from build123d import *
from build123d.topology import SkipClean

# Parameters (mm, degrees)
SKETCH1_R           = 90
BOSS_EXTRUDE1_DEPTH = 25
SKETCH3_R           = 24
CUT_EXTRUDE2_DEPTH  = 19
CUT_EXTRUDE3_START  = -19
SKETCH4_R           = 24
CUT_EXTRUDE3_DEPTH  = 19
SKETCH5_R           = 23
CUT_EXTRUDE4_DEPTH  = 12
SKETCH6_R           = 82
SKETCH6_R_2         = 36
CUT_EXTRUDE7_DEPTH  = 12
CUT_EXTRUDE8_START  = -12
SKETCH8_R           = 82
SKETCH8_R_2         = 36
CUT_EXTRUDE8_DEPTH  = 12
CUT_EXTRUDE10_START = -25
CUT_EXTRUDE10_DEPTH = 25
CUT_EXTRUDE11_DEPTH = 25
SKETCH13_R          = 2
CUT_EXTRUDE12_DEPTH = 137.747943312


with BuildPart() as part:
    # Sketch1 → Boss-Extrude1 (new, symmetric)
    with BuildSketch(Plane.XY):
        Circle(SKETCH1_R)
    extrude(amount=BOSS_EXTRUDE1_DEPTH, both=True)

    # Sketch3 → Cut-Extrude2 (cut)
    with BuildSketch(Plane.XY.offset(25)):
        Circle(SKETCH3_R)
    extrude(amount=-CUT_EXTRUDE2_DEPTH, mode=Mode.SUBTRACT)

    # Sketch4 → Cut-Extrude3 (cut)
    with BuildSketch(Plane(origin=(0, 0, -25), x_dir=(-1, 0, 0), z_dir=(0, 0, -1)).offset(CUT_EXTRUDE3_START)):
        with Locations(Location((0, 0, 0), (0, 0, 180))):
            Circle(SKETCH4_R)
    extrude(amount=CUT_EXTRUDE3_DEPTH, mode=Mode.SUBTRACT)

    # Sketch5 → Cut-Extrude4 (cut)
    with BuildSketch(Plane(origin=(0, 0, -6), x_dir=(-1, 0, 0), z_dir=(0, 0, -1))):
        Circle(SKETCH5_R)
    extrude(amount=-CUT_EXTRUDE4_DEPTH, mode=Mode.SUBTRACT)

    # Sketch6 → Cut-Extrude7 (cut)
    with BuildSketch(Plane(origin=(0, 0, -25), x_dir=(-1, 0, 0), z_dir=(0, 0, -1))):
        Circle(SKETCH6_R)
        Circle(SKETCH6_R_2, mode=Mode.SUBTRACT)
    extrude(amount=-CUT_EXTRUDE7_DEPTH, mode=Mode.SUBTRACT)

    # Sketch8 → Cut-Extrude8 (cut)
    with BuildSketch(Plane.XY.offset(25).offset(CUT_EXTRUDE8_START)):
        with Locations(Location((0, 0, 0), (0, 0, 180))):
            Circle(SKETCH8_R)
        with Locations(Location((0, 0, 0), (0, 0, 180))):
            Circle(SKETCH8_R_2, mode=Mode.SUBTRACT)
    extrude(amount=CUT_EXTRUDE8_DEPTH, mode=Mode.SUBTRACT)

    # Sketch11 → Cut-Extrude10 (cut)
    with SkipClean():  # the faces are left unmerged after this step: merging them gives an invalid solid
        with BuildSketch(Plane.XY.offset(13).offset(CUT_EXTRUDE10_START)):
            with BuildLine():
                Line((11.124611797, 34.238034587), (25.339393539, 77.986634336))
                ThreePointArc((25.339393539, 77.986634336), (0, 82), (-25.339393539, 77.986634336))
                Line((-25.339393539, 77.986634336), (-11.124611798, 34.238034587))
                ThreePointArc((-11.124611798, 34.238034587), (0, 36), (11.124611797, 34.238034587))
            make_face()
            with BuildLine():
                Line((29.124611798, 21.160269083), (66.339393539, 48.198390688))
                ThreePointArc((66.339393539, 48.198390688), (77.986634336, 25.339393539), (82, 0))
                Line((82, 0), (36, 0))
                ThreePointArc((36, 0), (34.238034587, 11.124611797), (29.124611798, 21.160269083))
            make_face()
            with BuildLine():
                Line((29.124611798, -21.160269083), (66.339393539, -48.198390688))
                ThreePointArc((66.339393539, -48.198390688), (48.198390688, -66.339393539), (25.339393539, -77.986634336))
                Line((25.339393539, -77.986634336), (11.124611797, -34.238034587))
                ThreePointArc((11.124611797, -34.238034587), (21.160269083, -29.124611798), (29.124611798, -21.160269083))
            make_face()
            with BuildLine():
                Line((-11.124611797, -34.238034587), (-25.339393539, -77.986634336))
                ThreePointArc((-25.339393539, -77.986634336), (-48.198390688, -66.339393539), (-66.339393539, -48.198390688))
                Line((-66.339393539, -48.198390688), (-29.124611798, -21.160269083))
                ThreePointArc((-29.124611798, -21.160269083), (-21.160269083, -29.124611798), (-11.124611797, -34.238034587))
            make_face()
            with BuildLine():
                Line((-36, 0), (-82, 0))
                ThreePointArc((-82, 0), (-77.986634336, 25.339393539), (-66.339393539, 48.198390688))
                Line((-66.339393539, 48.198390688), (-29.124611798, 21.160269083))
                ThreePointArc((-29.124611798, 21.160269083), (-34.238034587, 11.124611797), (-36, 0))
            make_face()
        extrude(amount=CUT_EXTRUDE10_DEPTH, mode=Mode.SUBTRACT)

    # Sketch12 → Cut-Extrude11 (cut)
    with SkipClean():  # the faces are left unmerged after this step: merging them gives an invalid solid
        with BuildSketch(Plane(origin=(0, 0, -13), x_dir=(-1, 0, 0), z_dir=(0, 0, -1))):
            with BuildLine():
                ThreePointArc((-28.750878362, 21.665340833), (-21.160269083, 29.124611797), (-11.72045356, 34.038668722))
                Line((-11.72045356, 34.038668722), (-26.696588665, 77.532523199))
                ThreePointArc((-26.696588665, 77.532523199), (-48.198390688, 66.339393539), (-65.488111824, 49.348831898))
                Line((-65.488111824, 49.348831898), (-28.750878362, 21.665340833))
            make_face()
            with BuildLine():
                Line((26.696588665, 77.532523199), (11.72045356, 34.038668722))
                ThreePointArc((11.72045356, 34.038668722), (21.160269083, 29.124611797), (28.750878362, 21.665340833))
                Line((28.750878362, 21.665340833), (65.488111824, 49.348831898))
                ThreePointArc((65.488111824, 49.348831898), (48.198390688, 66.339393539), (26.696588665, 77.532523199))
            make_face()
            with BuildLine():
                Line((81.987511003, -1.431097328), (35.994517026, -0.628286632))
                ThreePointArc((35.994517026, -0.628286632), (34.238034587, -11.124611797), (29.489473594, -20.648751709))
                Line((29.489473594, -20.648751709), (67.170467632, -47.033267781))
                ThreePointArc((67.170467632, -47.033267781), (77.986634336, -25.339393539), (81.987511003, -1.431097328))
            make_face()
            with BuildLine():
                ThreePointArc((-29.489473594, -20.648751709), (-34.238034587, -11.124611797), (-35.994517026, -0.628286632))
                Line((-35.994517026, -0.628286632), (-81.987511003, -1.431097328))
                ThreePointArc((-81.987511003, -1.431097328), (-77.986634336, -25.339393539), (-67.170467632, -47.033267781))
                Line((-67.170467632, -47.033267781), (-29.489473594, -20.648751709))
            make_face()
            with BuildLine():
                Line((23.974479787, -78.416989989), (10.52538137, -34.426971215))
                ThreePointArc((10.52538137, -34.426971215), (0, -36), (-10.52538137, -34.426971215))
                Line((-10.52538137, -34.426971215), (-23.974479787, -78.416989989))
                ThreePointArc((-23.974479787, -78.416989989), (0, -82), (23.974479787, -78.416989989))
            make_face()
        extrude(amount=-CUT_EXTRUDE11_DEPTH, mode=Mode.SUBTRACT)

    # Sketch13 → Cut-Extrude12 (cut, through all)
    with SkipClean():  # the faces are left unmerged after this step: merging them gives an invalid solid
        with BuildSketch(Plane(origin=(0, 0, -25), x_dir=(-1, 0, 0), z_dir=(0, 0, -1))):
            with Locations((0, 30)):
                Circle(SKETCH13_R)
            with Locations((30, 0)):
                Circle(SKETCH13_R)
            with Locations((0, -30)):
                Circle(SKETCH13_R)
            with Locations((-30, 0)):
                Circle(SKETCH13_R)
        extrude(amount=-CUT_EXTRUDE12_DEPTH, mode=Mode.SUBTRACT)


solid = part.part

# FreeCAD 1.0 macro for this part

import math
import FreeCAD as App
import Part
import Sketcher

V = App.Vector
Q = App.Units.Quantity

doc = App.newDocument("Part")
body = doc.addObject("PartDesign::Body", "Body")

# Sketch on XY plane
sketch1 = doc.addObject("Sketcher::SketchObject", "Sketch")
body.addObject(sketch1)
sketch1.AttachmentSupport = (doc.XY_Plane, [""])
sketch1.MapMode = "FlatFace"
sketch1.addGeometry(Part.Circle(V(0, 0, 0), V(0, 0, 1), 90), False)
sketch1.addConstraint([
    Sketcher.Constraint("Coincident", 0, 3, -1, 1),
    Sketcher.Constraint("Diameter", 0, Q("180 mm")),
])
pad1 = doc.addObject("PartDesign::Pad", "Pad")
body.addObject(pad1)
pad1.Profile = sketch1
pad1.Length = 50
pad1.Midplane = True

# Sketch on XY plane
sketch2 = doc.addObject("Sketcher::SketchObject", "Sketch001")
body.addObject(sketch2)
sketch2.AttachmentSupport = (doc.XY_Plane, [""])
sketch2.MapMode = "FlatFace"
sketch2.AttachmentOffset = App.Placement(V(0, 0, 25), App.Rotation())
sketch2.addGeometry(Part.Circle(V(0, 0, 0), V(0, 0, 1), 24), False)
sketch2.addConstraint([
    Sketcher.Constraint("Coincident", 0, 3, -1, 1),
    Sketcher.Constraint("Diameter", 0, Q("48 mm")),
])
pocket1 = doc.addObject("PartDesign::Pocket", "Pocket")
body.addObject(pocket1)
pocket1.Profile = sketch2
pocket1.Length = 19

# Sketch on XY plane
sketch3 = doc.addObject("Sketcher::SketchObject", "Sketch002")
body.addObject(sketch3)
sketch3.AttachmentSupport = (doc.XY_Plane, [""])
sketch3.MapMode = "FlatFace"
sketch3.AttachmentOffset = App.Placement(V(0, 0, -6), App.Rotation())
sketch3.addGeometry(Part.Circle(V(0, 0, 0), V(0, 0, 1), 24), False)
sketch3.addConstraint([
    Sketcher.Constraint("Coincident", 0, 3, -1, 1),
    Sketcher.Constraint("Diameter", 0, Q("48 mm")),
])
pocket2 = doc.addObject("PartDesign::Pocket", "Pocket001")
body.addObject(pocket2)
pocket2.Profile = sketch3
pocket2.Length = 19

# Sketch on XY plane
sketch4 = doc.addObject("Sketcher::SketchObject", "Sketch003")
body.addObject(sketch4)
sketch4.AttachmentSupport = (doc.XY_Plane, [""])
sketch4.MapMode = "FlatFace"
sketch4.AttachmentOffset = App.Placement(V(0, 0, -6), App.Rotation())
sketch4.addGeometry(Part.Circle(V(0, 0, 0), V(0, 0, 1), 23), False)
sketch4.addConstraint([
    Sketcher.Constraint("Coincident", 0, 3, -1, 1),
    Sketcher.Constraint("Diameter", 0, Q("46 mm")),
])
pocket3 = doc.addObject("PartDesign::Pocket", "Pocket002")
body.addObject(pocket3)
pocket3.Profile = sketch4
pocket3.Length = 12
pocket3.Reversed = True

# Sketch on XY plane
sketch5 = doc.addObject("Sketcher::SketchObject", "Sketch004")
body.addObject(sketch5)
sketch5.AttachmentSupport = (doc.XY_Plane, [""])
sketch5.MapMode = "FlatFace"
sketch5.AttachmentOffset = App.Placement(V(0, 0, -25), App.Rotation())
sketch5.addGeometry([
    Part.Circle(V(0, 0, 0), V(0, 0, 1), 82),
    Part.Circle(V(0, 0, 0), V(0, 0, 1), 36),
], False)
sketch5.addConstraint([
    Sketcher.Constraint("Coincident", 0, 3, -1, 1),
    Sketcher.Constraint("Coincident", 1, 3, -1, 1),
    Sketcher.Constraint("Diameter", 0, Q("164 mm")),
    Sketcher.Constraint("Diameter", 1, Q("72 mm")),
])
pocket4 = doc.addObject("PartDesign::Pocket", "Pocket003")
body.addObject(pocket4)
pocket4.Profile = sketch5
pocket4.Length = 12
pocket4.Reversed = True

# Sketch on XY plane
sketch6 = doc.addObject("Sketcher::SketchObject", "Sketch005")
body.addObject(sketch6)
sketch6.AttachmentSupport = (doc.XY_Plane, [""])
sketch6.MapMode = "FlatFace"
sketch6.AttachmentOffset = App.Placement(V(0, 0, 13), App.Rotation())
sketch6.addGeometry([
    Part.Circle(V(0, 0, 0), V(0, 0, 1), 82),
    Part.Circle(V(0, 0, 0), V(0, 0, 1), 36),
], False)
sketch6.addConstraint([
    Sketcher.Constraint("Coincident", 0, 3, -1, 1),
    Sketcher.Constraint("Coincident", 1, 3, -1, 1),
    Sketcher.Constraint("Diameter", 0, Q("164 mm")),
    Sketcher.Constraint("Diameter", 1, Q("72 mm")),
])
pocket5 = doc.addObject("PartDesign::Pocket", "Pocket004")
body.addObject(pocket5)
pocket5.Profile = sketch6
pocket5.Length = 12
pocket5.Reversed = True

# Sketch on XY plane
sketch7 = doc.addObject("Sketcher::SketchObject", "Sketch006")
body.addObject(sketch7)
sketch7.AttachmentSupport = (doc.XY_Plane, [""])
sketch7.MapMode = "FlatFace"
sketch7.AttachmentOffset = App.Placement(V(0, 0, -12), App.Rotation())
sketch7.addGeometry([
    Part.LineSegment(V(11, 34, 0), V(25, 78, 0)),  # 0
    Part.ArcOfCircle(Part.Circle(V(0, 0, 0), V(0, 0, 1), 82), math.radians(72), math.radians(108)),  # 1
    Part.LineSegment(V(-25, 78, 0), V(-11, 34, 0)),  # 2
    Part.ArcOfCircle(Part.Circle(V(0, 0, 0), V(0, 0, 1), 36), math.radians(72), math.radians(108)),  # 3
    Part.LineSegment(V(66, 48, 0), V(29, 21, 0)),  # 4
    Part.ArcOfCircle(Part.Circle(V(0, 0, 0), V(0, 0, 1), 36), math.radians(0), math.radians(36)),  # 5
    Part.LineSegment(V(36, 0, 0), V(82, 0, 0)),  # 6
    Part.ArcOfCircle(Part.Circle(V(0, 0, 0), V(0, 0, 1), 82), math.radians(0), math.radians(36)),  # 7
    Part.LineSegment(V(66, -48, 0), V(29, -21, 0)),  # 8
    Part.ArcOfCircle(Part.Circle(V(0, 0, 0), V(0, 0, 1), 36), math.radians(-72), math.radians(-36)),  # 9
    Part.LineSegment(V(11, -34, 0), V(25, -78, 0)),  # 10
    Part.ArcOfCircle(Part.Circle(V(0, 0, 0), V(0, 0, 1), 82), math.radians(-72), math.radians(-36)),  # 11
    Part.LineSegment(V(-25, -78, 0), V(-11, -34, 0)),  # 12
    Part.ArcOfCircle(Part.Circle(V(0, 0, 0), V(0, 0, 1), 36), math.radians(-144), math.radians(-108)),  # 13
    Part.LineSegment(V(-29, -21, 0), V(-66, -48, 0)),  # 14
    Part.ArcOfCircle(Part.Circle(V(0, 0, 0), V(0, 0, 1), 82), math.radians(-144), math.radians(-108)),  # 15
    Part.LineSegment(V(-82, 0, 0), V(-36, 0, 0)),  # 16
    Part.ArcOfCircle(Part.Circle(V(0, 0, 0), V(0, 0, 1), 36), math.radians(144), math.radians(180)),  # 17
    Part.LineSegment(V(-29, 21, 0), V(-66, 48, 0)),  # 18
    Part.ArcOfCircle(Part.Circle(V(0, 0, 0), V(0, 0, 1), 82), math.radians(144), math.radians(180)),  # 19
], False)
sketch7.addConstraint([
    Sketcher.Constraint("Coincident", 0, 2, 1, 1),
    Sketcher.Constraint("Coincident", 1, 2, 2, 1),
    Sketcher.Constraint("Coincident", 2, 2, 3, 2),
    Sketcher.Constraint("Coincident", 3, 1, 0, 1),
    Sketcher.Constraint("Coincident", 4, 2, 5, 2),
    Sketcher.Constraint("Coincident", 5, 1, 6, 1),
    Sketcher.Constraint("Coincident", 6, 2, 7, 1),
    Sketcher.Constraint("Coincident", 7, 2, 4, 1),
    Sketcher.Constraint("Coincident", 8, 2, 9, 2),
    Sketcher.Constraint("Coincident", 9, 1, 10, 1),
    Sketcher.Constraint("Coincident", 10, 2, 11, 1),
    Sketcher.Constraint("Coincident", 11, 2, 8, 1),
    Sketcher.Constraint("Coincident", 12, 2, 13, 2),
    Sketcher.Constraint("Coincident", 13, 1, 14, 1),
    Sketcher.Constraint("Coincident", 14, 2, 15, 1),
    Sketcher.Constraint("Coincident", 15, 2, 12, 1),
    Sketcher.Constraint("Coincident", 16, 2, 17, 2),
    Sketcher.Constraint("Coincident", 17, 1, 18, 1),
    Sketcher.Constraint("Coincident", 18, 2, 19, 1),
    Sketcher.Constraint("Coincident", 19, 2, 16, 1),
    Sketcher.Constraint("Horizontal", 6),
    Sketcher.Constraint("Horizontal", 16),
    Sketcher.Constraint("Coincident", 1, 3, -1, 1),
    Sketcher.Constraint("Coincident", 3, 3, -1, 1),
    Sketcher.Constraint("Coincident", 5, 3, -1, 1),
    Sketcher.Constraint("Coincident", 7, 3, -1, 1),
    Sketcher.Constraint("Coincident", 9, 3, -1, 1),
    Sketcher.Constraint("Coincident", 11, 3, -1, 1),
    Sketcher.Constraint("Coincident", 13, 3, -1, 1),
    Sketcher.Constraint("Coincident", 15, 3, -1, 1),
    Sketcher.Constraint("Coincident", 17, 3, -1, 1),
    Sketcher.Constraint("Coincident", 19, 3, -1, 1),
    Sketcher.Constraint("Equal", 3, 5),
    Sketcher.Constraint("Equal", 1, 7),
    Sketcher.Constraint("Equal", 5, 9),
    Sketcher.Constraint("Equal", 7, 11),
    Sketcher.Constraint("Equal", 9, 13),
    Sketcher.Constraint("Equal", 11, 15),
    Sketcher.Constraint("Equal", 13, 17),
    Sketcher.Constraint("Equal", 15, 19),
    Sketcher.Constraint("PointOnObject", 5, 1, -1),
    Sketcher.Constraint("PointOnObject", 16, 2, -1),
    Sketcher.Constraint("Parallel", 2, 10),
    Sketcher.Constraint("Parallel", 0, 12),
    Sketcher.Constraint("Parallel", 4, 14),
    Sketcher.Constraint("Parallel", 8, 18),
    Sketcher.Constraint("Horizontal", 0, 2, 1, 2),
    Sketcher.Constraint("Horizontal", 2, 2, 3, 1),
    Sketcher.Constraint("Horizontal", 9, 1, 12, 2),
    Sketcher.Constraint("Horizontal", 8, 2, 13, 1),
    Sketcher.Constraint("Horizontal", 11, 2, 14, 2),
    Sketcher.Constraint("Horizontal", 4, 2, 17, 1),
    Sketcher.Constraint("Vertical", 4, 2, 8, 2),
    Sketcher.Constraint("Vertical", 3, 1, 9, 1),
    Sketcher.Constraint("Radius", 1, Q("82 mm")),
    Sketcher.Constraint("Radius", 3, Q("36 mm")),
    Sketcher.Constraint("Angle", 0, Q("72 deg")),
    Sketcher.Constraint("Angle", 4, Q("-144 deg")),
    Sketcher.Constraint("DistanceX", 3, 1, 4, 2, Q("18 mm")),
    Sketcher.Constraint("DistanceX", 2, 2, -1, 1, Q("11.124612 mm")),
])
pocket6 = doc.addObject("PartDesign::Pocket", "Pocket005")
body.addObject(pocket6)
pocket6.Profile = sketch7
pocket6.Length = 25
pocket6.Reversed = True

# Sketch on XY plane
sketch8 = doc.addObject("Sketcher::SketchObject", "Sketch007")
body.addObject(sketch8)
sketch8.AttachmentSupport = (doc.XY_Plane, [""])
sketch8.MapMode = "FlatFace"
sketch8.AttachmentOffset = App.Placement(V(0, 0, -13), App.Rotation())
sketch8.addGeometry([
    Part.ArcOfCircle(Part.Circle(V(0, 0, 0), V(0, 0, 1), 36), math.radians(37), math.radians(71)),  # 0
    Part.LineSegment(V(11.720454, 34.038669, 0), V(26.696589, 77.532523, 0)),  # 1
    Part.ArcOfCircle(Part.Circle(V(0, 0, 0), V(0, 0, 1), 82), math.radians(37), math.radians(71)),  # 2
    Part.LineSegment(V(65.488112, 49.348832, 0), V(28.750878, 21.665341, 0)),  # 3
    Part.LineSegment(V(-26.696589, 77.532523, 0), V(-11.720454, 34.038669, 0)),  # 4
    Part.ArcOfCircle(Part.Circle(V(0, 0, 0), V(0, 0, 1), 36), math.radians(109), math.radians(143)),  # 5
    Part.LineSegment(V(-28.750878, 21.665341, 0), V(-65.488112, 49.348832, 0)),  # 6
    Part.ArcOfCircle(Part.Circle(V(0, 0, 0), V(0, 0, 1), 82), math.radians(109), math.radians(143)),  # 7
    Part.LineSegment(V(-81.987511, -1.431097, 0), V(-35.994517, -0.628287, 0)),  # 8
    Part.ArcOfCircle(Part.Circle(V(0, 0, 0), V(0, 0, 1), 36), math.radians(-179), math.radians(-145)),  # 9
    Part.LineSegment(V(-29.489474, -20.648752, 0), V(-67.170468, -47.033268, 0)),  # 10
    Part.ArcOfCircle(Part.Circle(V(0, 0, 0), V(0, 0, 1), 82), math.radians(-179), math.radians(-145)),  # 11
    Part.ArcOfCircle(Part.Circle(V(0, 0, 0), V(0, 0, 1), 36), math.radians(-35), math.radians(-1)),  # 12
    Part.LineSegment(V(35.994517, -0.628287, 0), V(81.987511, -1.431097, 0)),  # 13
    Part.ArcOfCircle(Part.Circle(V(0, 0, 0), V(0, 0, 1), 82), math.radians(-35), math.radians(-1)),  # 14
    Part.LineSegment(V(67.170468, -47.033268, 0), V(29.489474, -20.648752, 0)),  # 15
    Part.LineSegment(V(-23.97448, -78.41699, 0), V(-10.525381, -34.426971, 0)),  # 16
    Part.ArcOfCircle(Part.Circle(V(0, 0, 0), V(0, 0, 1), 36), math.radians(-107), math.radians(-73)),  # 17
    Part.LineSegment(V(10.525381, -34.426971, 0), V(23.97448, -78.41699, 0)),  # 18
    Part.ArcOfCircle(Part.Circle(V(0, 0, 0), V(0, 0, 1), 82), math.radians(-107), math.radians(-73)),  # 19
], False)
sketch8.addConstraint([
    Sketcher.Constraint("Coincident", 0, 2, 1, 1),
    Sketcher.Constraint("Coincident", 1, 2, 2, 2),
    Sketcher.Constraint("Coincident", 2, 1, 3, 1),
    Sketcher.Constraint("Coincident", 3, 2, 0, 1),
    Sketcher.Constraint("Coincident", 4, 2, 5, 1),
    Sketcher.Constraint("Coincident", 5, 2, 6, 1),
    Sketcher.Constraint("Coincident", 6, 2, 7, 2),
    Sketcher.Constraint("Coincident", 7, 1, 4, 1),
    Sketcher.Constraint("Coincident", 8, 2, 9, 1),
    Sketcher.Constraint("Coincident", 9, 2, 10, 1),
    Sketcher.Constraint("Coincident", 10, 2, 11, 2),
    Sketcher.Constraint("Coincident", 11, 1, 8, 1),
    Sketcher.Constraint("Coincident", 12, 2, 13, 1),
    Sketcher.Constraint("Coincident", 13, 2, 14, 2),
    Sketcher.Constraint("Coincident", 14, 1, 15, 1),
    Sketcher.Constraint("Coincident", 15, 2, 12, 1),
    Sketcher.Constraint("Coincident", 16, 2, 17, 1),
    Sketcher.Constraint("Coincident", 17, 2, 18, 1),
    Sketcher.Constraint("Coincident", 18, 2, 19, 2),
    Sketcher.Constraint("Coincident", 19, 1, 16, 1),
    Sketcher.Constraint("Coincident", 0, 3, -1, 1),
    Sketcher.Constraint("Coincident", 2, 3, -1, 1),
    Sketcher.Constraint("Coincident", 5, 3, -1, 1),
    Sketcher.Constraint("Coincident", 7, 3, -1, 1),
    Sketcher.Constraint("Coincident", 9, 3, -1, 1),
    Sketcher.Constraint("Coincident", 11, 3, -1, 1),
    Sketcher.Constraint("Coincident", 12, 3, -1, 1),
    Sketcher.Constraint("Coincident", 14, 3, -1, 1),
    Sketcher.Constraint("Coincident", 17, 3, -1, 1),
    Sketcher.Constraint("Coincident", 19, 3, -1, 1),
    Sketcher.Constraint("Radius", 0, Q("36 mm")),
    Sketcher.Constraint("Radius", 2, Q("82 mm")),
    Sketcher.Constraint("Radius", 5, Q("36 mm")),
    Sketcher.Constraint("Radius", 7, Q("82 mm")),
    Sketcher.Constraint("Radius", 9, Q("36 mm")),
    Sketcher.Constraint("Radius", 11, Q("82 mm")),
    Sketcher.Constraint("Radius", 12, Q("36 mm")),
    Sketcher.Constraint("Radius", 14, Q("82 mm")),
    Sketcher.Constraint("Radius", 17, Q("36 mm")),
    Sketcher.Constraint("Radius", 19, Q("82 mm")),
    Sketcher.Constraint("DistanceX", 11, 1, 6, 2, Q("16.499399 mm")),
    Sketcher.Constraint("DistanceX", 2, 1, 13, 2, Q("16.499399 mm")),
    Sketcher.Constraint("DistanceX", 17, 2, 18, 2, Q("13.449098 mm")),
    Sketcher.Constraint("DistanceX", 19, 1, 16, 2, Q("13.449098 mm")),
    Sketcher.Constraint("DistanceY", -1, 1, 0, 2, Q("34.038669 mm")),
    Sketcher.Constraint("DistanceX", -1, 1, 1, 2, Q("26.696589 mm")),
    Sketcher.Constraint("DistanceX", -1, 1, 3, 2, Q("28.750878 mm")),
    Sketcher.Constraint("DistanceY", -1, 1, 4, 2, Q("34.038669 mm")),
    Sketcher.Constraint("DistanceX", 5, 2, -1, 1, Q("28.750878 mm")),
    Sketcher.Constraint("DistanceX", 6, 2, -1, 1, Q("65.488112 mm")),
    Sketcher.Constraint("DistanceX", 7, 1, -1, 1, Q("26.696589 mm")),
    Sketcher.Constraint("DistanceY", 9, 2, -1, 1, Q("20.648752 mm")),
    Sketcher.Constraint("DistanceX", -1, 1, 13, 2, Q("81.987511 mm")),
    Sketcher.Constraint("DistanceY", 15, 2, -1, 1, Q("20.648752 mm")),
    Sketcher.Constraint("DistanceX", 16, 2, -1, 1, Q("10.525381 mm")),
    Sketcher.Constraint("DistanceX", -1, 1, 17, 2, Q("10.525381 mm")),
    Sketcher.Constraint("DistanceX", 10, 2, 8, 2, Q("31.175951 mm")),
    Sketcher.Constraint("DistanceY", 10, 2, 8, 2, Q("46.404981 mm")),
    Sketcher.Constraint("DistanceX", 3, 2, 12, 2, Q("7.243639 mm")),
    Sketcher.Constraint("DistanceY", 14, 1, 13, 2, Q("45.60217 mm")),
])
pocket7 = doc.addObject("PartDesign::Pocket", "Pocket006")
body.addObject(pocket7)
pocket7.Profile = sketch8
pocket7.Length = 25
pocket7.Reversed = True

# Sketch on XY plane
sketch9 = doc.addObject("Sketcher::SketchObject", "Sketch008")
body.addObject(sketch9)
sketch9.AttachmentSupport = (doc.XY_Plane, [""])
sketch9.MapMode = "FlatFace"
sketch9.AttachmentOffset = App.Placement(V(0, 0, -25), App.Rotation())
sketch9.addGeometry([
    Part.Circle(V(0, 30, 0), V(0, 0, 1), 2),
    Part.Circle(V(-30, 0, 0), V(0, 0, 1), 2),
    Part.Circle(V(0, -30, 0), V(0, 0, 1), 2),
    Part.Circle(V(30, 0, 0), V(0, 0, 1), 2),
], False)
sketch9.addConstraint([
    Sketcher.Constraint("Equal", 0, 1),
    Sketcher.Constraint("Equal", 1, 2),
    Sketcher.Constraint("Equal", 2, 3),
    Sketcher.Constraint("Symmetric", 0, 3, 2, 3, -1, 1),
    Sketcher.Constraint("Symmetric", 1, 3, 3, 3, -1, 1),
    Sketcher.Constraint("PointOnObject", 0, 3, -2),
    Sketcher.Constraint("PointOnObject", 1, 3, -1),
    Sketcher.Constraint("Diameter", 0, Q("4 mm")),
    Sketcher.Constraint("DistanceY", -1, 1, 0, 3, Q("30 mm")),
    Sketcher.Constraint("DistanceX", 1, 3, -1, 1, Q("30 mm")),
])
pocket8 = doc.addObject("PartDesign::Pocket", "Pocket007")
body.addObject(pocket8)
pocket8.Profile = sketch9
pocket8.Type = "ThroughAll"
pocket8.Reversed = True

doc.recompute()
